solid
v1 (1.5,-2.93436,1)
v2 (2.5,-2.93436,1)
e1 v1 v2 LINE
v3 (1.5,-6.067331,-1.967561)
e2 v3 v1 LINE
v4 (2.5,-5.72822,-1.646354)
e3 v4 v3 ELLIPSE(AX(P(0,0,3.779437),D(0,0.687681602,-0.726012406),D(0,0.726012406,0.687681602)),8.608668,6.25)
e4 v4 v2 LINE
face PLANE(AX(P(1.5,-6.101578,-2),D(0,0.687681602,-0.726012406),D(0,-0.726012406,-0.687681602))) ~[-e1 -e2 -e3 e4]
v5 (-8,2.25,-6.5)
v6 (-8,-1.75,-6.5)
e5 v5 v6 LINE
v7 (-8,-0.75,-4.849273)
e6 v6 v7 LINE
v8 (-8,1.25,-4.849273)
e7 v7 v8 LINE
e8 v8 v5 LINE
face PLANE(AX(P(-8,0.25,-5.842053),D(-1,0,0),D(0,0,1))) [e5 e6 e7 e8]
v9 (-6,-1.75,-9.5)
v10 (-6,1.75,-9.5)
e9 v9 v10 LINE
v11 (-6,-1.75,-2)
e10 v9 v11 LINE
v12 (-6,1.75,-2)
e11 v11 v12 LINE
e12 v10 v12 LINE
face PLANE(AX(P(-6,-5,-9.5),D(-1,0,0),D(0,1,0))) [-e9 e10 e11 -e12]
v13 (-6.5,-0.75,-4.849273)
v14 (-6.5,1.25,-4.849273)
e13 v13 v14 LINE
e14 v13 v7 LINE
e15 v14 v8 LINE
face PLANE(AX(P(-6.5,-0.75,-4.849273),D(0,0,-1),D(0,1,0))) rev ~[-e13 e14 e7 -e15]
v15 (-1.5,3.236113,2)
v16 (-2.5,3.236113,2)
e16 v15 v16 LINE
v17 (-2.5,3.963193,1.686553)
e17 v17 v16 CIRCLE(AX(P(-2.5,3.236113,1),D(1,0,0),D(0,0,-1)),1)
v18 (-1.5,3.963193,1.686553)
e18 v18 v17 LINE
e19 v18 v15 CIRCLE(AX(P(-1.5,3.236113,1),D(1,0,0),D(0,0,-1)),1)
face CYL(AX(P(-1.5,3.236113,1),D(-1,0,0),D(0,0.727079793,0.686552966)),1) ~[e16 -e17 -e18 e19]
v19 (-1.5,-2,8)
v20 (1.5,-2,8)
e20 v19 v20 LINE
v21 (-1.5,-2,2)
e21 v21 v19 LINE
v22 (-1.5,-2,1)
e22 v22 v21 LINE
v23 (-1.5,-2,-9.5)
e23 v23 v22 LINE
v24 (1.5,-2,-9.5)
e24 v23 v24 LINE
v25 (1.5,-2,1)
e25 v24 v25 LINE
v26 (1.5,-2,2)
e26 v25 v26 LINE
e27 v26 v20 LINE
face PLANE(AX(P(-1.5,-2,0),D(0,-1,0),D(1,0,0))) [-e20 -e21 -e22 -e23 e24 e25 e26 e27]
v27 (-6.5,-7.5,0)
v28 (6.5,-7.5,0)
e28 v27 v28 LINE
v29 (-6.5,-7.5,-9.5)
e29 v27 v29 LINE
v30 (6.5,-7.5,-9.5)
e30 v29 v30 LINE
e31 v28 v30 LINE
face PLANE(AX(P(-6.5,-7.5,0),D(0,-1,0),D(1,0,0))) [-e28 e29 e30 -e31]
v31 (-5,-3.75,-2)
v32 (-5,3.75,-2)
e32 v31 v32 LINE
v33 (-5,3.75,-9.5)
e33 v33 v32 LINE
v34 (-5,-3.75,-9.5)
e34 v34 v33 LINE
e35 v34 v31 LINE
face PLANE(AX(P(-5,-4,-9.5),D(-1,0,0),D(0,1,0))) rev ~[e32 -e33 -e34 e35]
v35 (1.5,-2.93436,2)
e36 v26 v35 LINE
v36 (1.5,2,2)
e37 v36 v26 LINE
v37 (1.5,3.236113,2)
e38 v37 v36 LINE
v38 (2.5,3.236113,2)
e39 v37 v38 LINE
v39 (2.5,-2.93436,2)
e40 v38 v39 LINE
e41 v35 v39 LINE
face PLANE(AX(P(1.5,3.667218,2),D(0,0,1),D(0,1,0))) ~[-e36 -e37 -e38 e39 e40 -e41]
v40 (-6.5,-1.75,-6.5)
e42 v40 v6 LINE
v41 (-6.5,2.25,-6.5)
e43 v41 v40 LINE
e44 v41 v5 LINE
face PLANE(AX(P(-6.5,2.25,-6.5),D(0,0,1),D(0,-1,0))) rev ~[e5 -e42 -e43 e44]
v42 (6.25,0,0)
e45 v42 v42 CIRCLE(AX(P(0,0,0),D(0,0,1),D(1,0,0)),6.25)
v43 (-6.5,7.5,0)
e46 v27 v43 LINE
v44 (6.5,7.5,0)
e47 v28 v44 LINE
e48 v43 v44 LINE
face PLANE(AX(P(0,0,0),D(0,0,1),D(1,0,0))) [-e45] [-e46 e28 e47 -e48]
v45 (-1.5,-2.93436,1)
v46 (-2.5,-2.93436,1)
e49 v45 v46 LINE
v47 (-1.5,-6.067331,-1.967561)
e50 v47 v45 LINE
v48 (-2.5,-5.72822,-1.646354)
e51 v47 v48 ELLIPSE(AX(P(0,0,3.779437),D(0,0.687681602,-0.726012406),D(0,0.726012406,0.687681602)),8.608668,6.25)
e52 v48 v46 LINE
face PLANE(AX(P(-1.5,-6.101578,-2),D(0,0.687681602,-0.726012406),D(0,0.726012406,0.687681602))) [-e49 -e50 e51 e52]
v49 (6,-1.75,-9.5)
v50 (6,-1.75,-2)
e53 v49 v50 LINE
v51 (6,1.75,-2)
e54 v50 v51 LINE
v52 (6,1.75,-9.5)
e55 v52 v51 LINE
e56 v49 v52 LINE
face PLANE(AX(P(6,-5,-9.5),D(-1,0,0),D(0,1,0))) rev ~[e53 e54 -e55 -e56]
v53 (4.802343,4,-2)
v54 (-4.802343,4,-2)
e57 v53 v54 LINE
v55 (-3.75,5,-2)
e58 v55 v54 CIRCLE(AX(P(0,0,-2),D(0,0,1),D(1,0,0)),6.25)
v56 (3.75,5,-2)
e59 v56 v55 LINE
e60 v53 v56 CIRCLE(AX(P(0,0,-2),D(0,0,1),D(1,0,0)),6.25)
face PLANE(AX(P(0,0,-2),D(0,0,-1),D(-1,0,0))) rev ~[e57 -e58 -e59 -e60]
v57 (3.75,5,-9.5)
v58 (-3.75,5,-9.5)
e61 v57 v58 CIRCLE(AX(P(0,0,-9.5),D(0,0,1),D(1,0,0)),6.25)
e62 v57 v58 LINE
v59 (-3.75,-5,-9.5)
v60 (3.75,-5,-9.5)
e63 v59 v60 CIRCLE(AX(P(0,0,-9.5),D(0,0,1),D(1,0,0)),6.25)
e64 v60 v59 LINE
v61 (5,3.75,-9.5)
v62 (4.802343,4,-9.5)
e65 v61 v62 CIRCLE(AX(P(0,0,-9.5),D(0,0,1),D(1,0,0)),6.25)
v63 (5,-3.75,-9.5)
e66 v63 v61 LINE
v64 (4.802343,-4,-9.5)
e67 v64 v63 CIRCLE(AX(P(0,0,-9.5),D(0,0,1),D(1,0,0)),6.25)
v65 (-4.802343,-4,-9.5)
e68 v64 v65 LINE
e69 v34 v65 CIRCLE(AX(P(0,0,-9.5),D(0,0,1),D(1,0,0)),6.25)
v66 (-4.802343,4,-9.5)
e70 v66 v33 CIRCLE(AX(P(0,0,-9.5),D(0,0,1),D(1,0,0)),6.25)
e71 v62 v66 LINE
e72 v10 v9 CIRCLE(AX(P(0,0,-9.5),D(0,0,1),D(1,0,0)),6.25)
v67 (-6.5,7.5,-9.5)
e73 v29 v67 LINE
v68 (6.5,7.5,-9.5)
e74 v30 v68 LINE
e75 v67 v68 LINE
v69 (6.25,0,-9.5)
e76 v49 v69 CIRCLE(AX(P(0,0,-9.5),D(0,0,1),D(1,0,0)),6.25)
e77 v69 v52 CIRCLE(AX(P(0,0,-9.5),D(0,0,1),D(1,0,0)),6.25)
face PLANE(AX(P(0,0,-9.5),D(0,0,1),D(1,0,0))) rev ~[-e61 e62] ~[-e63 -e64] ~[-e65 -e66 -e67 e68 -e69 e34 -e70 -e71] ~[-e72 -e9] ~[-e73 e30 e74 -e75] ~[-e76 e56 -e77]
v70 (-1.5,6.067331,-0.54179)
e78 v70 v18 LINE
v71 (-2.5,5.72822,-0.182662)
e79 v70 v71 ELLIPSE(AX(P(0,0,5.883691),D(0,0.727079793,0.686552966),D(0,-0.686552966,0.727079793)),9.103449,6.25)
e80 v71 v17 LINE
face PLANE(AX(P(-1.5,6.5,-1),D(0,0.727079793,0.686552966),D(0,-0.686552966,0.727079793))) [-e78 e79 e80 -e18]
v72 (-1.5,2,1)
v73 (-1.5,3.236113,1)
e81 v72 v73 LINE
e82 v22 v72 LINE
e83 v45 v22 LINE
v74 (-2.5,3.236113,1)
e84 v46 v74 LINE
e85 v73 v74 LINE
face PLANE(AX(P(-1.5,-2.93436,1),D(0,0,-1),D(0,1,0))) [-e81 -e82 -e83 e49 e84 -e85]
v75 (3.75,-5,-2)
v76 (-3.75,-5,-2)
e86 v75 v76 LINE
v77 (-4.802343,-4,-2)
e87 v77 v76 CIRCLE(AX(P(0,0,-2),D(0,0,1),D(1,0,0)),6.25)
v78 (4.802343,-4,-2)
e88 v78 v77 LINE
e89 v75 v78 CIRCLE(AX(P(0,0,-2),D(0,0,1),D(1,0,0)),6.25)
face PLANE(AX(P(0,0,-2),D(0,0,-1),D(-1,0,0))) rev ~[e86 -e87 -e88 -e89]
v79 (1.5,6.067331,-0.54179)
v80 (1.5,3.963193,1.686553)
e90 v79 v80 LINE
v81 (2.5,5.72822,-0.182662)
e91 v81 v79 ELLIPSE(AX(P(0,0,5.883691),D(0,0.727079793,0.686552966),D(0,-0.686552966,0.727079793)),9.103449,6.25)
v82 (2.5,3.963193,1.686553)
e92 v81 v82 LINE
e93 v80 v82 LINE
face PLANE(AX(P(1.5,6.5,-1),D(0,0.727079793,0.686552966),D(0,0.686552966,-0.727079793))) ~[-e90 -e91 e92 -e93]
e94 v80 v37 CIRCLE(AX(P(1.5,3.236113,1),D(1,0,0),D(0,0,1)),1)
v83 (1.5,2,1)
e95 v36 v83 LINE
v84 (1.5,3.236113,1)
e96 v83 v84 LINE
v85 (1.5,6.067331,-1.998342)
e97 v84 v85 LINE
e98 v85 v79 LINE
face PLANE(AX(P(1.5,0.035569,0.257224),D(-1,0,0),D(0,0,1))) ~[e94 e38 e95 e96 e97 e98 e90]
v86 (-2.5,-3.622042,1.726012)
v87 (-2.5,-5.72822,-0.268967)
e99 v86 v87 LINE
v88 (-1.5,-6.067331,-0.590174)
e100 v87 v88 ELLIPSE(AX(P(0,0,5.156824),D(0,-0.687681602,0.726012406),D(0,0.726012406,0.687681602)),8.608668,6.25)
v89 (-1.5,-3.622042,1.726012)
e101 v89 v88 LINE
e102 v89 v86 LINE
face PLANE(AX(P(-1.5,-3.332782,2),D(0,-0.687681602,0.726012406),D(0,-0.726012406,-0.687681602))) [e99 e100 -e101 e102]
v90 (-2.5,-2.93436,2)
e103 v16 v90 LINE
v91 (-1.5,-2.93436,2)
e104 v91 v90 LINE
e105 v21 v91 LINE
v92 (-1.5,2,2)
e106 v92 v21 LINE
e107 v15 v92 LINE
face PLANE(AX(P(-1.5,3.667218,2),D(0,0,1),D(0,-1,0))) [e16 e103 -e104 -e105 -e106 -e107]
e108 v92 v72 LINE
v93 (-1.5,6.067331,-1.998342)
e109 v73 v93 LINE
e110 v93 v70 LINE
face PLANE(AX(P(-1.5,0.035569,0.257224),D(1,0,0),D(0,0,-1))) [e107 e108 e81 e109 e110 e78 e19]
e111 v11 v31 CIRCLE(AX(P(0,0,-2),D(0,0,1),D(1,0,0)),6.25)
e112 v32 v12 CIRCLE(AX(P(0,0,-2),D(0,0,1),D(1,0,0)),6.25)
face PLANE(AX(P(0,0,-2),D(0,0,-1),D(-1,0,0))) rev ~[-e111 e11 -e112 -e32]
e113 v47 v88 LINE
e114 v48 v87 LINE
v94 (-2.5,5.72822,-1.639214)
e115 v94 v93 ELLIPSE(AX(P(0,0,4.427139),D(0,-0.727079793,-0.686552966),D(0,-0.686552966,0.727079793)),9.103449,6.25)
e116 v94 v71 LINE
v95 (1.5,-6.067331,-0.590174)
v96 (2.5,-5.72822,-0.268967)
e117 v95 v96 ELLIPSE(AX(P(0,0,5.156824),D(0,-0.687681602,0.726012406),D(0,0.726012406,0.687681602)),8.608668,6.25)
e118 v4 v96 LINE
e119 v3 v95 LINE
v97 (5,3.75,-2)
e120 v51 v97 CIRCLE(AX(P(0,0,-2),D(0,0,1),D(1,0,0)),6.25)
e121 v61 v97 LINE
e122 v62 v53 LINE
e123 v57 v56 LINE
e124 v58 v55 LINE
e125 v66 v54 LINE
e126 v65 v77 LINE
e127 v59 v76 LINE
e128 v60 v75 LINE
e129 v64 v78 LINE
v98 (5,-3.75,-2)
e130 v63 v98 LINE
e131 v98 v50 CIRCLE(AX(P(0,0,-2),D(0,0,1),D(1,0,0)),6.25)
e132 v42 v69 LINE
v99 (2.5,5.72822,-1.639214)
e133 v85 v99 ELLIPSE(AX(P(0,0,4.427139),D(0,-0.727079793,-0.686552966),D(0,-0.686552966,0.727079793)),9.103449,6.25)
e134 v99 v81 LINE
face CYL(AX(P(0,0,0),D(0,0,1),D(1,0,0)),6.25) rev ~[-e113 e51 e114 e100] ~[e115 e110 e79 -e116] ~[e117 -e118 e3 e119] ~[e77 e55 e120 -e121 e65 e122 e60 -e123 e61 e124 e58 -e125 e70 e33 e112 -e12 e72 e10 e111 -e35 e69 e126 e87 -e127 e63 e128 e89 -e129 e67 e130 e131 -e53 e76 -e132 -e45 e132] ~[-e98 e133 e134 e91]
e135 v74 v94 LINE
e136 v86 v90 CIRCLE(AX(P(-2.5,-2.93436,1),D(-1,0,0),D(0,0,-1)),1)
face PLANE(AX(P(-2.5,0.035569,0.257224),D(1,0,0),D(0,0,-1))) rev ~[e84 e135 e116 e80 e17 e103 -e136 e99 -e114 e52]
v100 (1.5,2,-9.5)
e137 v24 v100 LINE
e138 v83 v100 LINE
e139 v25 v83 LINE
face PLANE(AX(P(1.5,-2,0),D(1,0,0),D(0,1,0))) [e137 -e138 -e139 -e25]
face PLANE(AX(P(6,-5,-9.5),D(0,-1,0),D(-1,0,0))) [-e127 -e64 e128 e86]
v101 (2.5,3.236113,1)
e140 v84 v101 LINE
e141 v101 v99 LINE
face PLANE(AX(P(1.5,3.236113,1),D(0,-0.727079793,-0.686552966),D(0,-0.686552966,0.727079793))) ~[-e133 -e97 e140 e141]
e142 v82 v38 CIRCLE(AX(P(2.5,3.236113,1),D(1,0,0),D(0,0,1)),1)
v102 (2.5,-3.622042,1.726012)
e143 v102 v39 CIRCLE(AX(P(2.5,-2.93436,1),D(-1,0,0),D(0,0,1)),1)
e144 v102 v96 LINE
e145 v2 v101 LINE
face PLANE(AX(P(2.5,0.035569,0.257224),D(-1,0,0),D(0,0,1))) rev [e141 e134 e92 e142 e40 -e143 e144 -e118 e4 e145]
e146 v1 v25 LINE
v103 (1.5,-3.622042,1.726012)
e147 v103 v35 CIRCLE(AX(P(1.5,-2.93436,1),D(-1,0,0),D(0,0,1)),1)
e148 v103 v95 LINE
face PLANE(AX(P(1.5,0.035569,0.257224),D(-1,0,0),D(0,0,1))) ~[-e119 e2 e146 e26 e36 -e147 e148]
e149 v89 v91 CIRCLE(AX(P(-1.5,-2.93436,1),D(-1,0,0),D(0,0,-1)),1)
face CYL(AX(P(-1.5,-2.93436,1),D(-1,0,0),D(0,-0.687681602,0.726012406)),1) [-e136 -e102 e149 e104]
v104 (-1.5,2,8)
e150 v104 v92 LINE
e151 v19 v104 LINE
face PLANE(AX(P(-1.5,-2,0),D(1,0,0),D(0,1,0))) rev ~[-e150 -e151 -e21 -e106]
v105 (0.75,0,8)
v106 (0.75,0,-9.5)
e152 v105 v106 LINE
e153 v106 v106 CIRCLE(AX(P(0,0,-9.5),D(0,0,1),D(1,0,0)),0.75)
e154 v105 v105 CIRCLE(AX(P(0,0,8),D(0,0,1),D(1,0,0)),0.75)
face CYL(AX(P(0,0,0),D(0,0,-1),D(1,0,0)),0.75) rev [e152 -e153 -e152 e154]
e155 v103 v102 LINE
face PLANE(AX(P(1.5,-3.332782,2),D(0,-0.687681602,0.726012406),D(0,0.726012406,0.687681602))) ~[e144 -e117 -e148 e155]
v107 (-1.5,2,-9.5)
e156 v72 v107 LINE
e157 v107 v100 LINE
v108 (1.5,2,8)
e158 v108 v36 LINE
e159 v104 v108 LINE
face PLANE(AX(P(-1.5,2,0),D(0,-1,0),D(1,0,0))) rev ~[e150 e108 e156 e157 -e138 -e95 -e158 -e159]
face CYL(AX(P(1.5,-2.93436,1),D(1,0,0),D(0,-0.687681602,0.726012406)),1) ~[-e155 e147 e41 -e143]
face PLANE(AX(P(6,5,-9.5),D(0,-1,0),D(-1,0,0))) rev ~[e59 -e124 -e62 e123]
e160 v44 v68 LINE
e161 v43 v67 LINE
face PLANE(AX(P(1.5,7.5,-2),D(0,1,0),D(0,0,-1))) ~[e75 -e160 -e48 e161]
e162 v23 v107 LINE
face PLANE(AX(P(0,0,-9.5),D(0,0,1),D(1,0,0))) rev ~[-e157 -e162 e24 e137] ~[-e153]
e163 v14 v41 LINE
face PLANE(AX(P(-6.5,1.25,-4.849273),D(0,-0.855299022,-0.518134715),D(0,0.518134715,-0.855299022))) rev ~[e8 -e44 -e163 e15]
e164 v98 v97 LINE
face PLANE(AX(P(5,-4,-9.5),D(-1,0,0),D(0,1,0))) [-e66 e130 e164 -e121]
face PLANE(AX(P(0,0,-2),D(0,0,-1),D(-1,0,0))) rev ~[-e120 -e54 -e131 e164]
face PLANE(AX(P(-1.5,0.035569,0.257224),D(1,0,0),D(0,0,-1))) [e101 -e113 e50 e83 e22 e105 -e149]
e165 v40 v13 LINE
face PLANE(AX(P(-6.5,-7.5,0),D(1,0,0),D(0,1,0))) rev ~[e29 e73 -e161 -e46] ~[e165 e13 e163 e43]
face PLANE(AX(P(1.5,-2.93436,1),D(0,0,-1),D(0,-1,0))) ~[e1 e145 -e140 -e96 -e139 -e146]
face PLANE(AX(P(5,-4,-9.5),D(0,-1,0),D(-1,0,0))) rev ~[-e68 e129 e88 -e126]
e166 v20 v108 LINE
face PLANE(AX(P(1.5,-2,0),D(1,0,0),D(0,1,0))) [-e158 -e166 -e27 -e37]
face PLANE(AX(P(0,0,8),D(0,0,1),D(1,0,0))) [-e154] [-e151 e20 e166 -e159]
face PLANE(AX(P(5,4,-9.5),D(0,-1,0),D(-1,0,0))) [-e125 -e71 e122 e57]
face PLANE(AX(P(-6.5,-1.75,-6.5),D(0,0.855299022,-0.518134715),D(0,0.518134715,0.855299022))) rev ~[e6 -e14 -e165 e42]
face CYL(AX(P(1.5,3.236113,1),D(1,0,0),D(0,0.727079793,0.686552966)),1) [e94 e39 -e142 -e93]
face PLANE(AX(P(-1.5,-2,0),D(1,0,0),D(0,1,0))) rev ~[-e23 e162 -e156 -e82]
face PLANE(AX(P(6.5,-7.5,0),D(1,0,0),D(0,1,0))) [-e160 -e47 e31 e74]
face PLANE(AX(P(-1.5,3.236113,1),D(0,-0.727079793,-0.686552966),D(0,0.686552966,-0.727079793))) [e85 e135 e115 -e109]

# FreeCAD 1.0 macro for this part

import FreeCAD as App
import Part
import Sketcher
from FreeCAD import Vector
Q = App.Units.Quantity


def edges_at(feature, points):
    """Names of the edges that pass closest to the given points."""
    edges = feature.Shape.Edges
    near = lambda p: min(range(len(edges)), key=lambda i: edges[i].distToShape(Part.Vertex(*p))[0])
    return sorted({f"Edge{near(p) + 1}" for p in points})


def add_polygon(sketch, points):
    """Adds a closed chain of lines whose ends are joined by coincident constraints."""
    first, n = sketch.GeometryCount, len(points)
    for a, b in zip(points, points[1:] + points[:1]):
        sketch.addGeometry(Part.LineSegment(App.Vector(*a, 0), App.Vector(*b, 0)), False)
    for i in range(n):
        sketch.addConstraint(Sketcher.Constraint("Coincident", first + i, 2, first + (i + 1) % n, 1))

doc = App.newDocument("Part")
body = doc.addObject("PartDesign::Body", "Body")

sketch1 = doc.addObject("Sketcher::SketchObject", "Sketch")
body.addObject(sketch1)
sketch1.AttachmentSupport = (doc.XY_Plane, [""])
sketch1.MapMode = "FlatFace"
add_polygon(sketch1, [(-6.5, 7.5), (-6.5, -7.5), (6.5, -7.5), (6.5, 7.5)])
sketch1.addConstraint(Sketcher.Constraint("Vertical", 0))
sketch1.addConstraint(Sketcher.Constraint("Horizontal", 1))
sketch1.addConstraint(Sketcher.Constraint("Vertical", 2))
sketch1.addConstraint(Sketcher.Constraint("Horizontal", 3))
sketch1.addConstraint(Sketcher.Constraint("Symmetric", 0, 2, 2, 2, -1, 1))
sketch1.addConstraint(Sketcher.Constraint("DistanceX", 1, 1, 1, 2, Q("13 mm")))
sketch1.addConstraint(Sketcher.Constraint("DistanceY", 0, 2, 0, 1, Q("15 mm")))
pad1 = doc.addObject("PartDesign::Pad", "Pad")
body.addObject(pad1)
pad1.Profile = sketch1
pad1.Length = 9.5
pad1.Reversed = True

sketch2 = doc.addObject("Sketcher::SketchObject", "Sketch001")
body.addObject(sketch2)
sketch2.AttachmentSupport = (doc.XY_Plane, [""])
sketch2.MapMode = "FlatFace"
sketch2.addGeometry(Part.Circle(Vector(0, 0, 0), Vector(0, 0, 1), 6.25), False)
sketch2.addConstraint(Sketcher.Constraint("Coincident", 0, 3, -1, 1))
sketch2.addConstraint(Sketcher.Constraint("Diameter", 0, Q("12.5 mm")))
pocket1 = doc.addObject("PartDesign::Pocket", "Pocket")
body.addObject(pocket1)
pocket1.Profile = sketch2
pocket1.Type = "ThroughAll"

sketch3 = doc.addObject("Sketcher::SketchObject", "Sketch002")
body.addObject(sketch3)
sketch3.AttachmentSupport = (doc.YZ_Plane, [""])
sketch3.MapMode = "FlatFace"
sketch3.AttachmentOffset = App.Placement(Vector(0, 0, -6.5), App.Rotation())
add_polygon(sketch3, [(2.25, -6.5), (-1.75, -6.5), (-0.75, -4.849273), (1.25, -4.849273)])
sketch3.addConstraint(Sketcher.Constraint("Horizontal", 0))
sketch3.addConstraint(Sketcher.Constraint("Horizontal", 2))
sketch3.addConstraint(Sketcher.Constraint("Equal", 1, 3))
sketch3.addConstraint(Sketcher.Constraint("DistanceX", 0, 2, 0, 1, Q("4 mm")))
sketch3.addConstraint(Sketcher.Constraint("DistanceX", 2, 1, 2, 2, Q("2 mm")))
sketch3.addConstraint(Sketcher.Constraint("DistanceY", 0, 2, -1, 1, Q("6.5 mm")))
sketch3.addConstraint(Sketcher.Constraint("Distance", 1, Q("1.93 mm")))
sketch3.addConstraint(Sketcher.Constraint("DistanceX", 0, 2, -1, 1, Q("1.75 mm")))
pad2 = doc.addObject("PartDesign::Pad", "Pad001")
body.addObject(pad2)
pad2.Profile = sketch3
pad2.Length = 1.5
pad2.Reversed = True

sketch4 = doc.addObject("Sketcher::SketchObject", "Sketch003")
body.addObject(sketch4)
sketch4.AttachmentSupport = (doc.XY_Plane, [""])
sketch4.MapMode = "FlatFace"
sketch4.AttachmentOffset = App.Placement(Vector(0, 0, -9.5), App.Rotation())
add_polygon(sketch4, [(6, 5), (6, -5), (-6, -5), (-6, 5)])
add_polygon(sketch4, [(-5, -4), (5, -4), (5, 4), (-5, 4)])
sketch4.addConstraint(Sketcher.Constraint("Vertical", 0))
sketch4.addConstraint(Sketcher.Constraint("Horizontal", 1))
sketch4.addConstraint(Sketcher.Constraint("Vertical", 2))
sketch4.addConstraint(Sketcher.Constraint("Horizontal", 3))
sketch4.addConstraint(Sketcher.Constraint("Horizontal", 4))
sketch4.addConstraint(Sketcher.Constraint("Vertical", 5))
sketch4.addConstraint(Sketcher.Constraint("Horizontal", 6))
sketch4.addConstraint(Sketcher.Constraint("Vertical", 7))
sketch4.addConstraint(Sketcher.Constraint("Symmetric", 0, 2, 2, 2, -1, 1))
sketch4.addConstraint(Sketcher.Constraint("Symmetric", 4, 2, 6, 2, -1, 1))
sketch4.addConstraint(Sketcher.Constraint("Equal", 6, 0))
sketch4.addConstraint(Sketcher.Constraint("DistanceX", 1, 2, 1, 1, Q("12 mm")))
sketch4.addConstraint(Sketcher.Constraint("DistanceX", 4, 1, 4, 2, Q("10 mm")))
sketch4.addConstraint(Sketcher.Constraint("DistanceY", 5, 1, 5, 2, Q("8 mm")))
pad3 = doc.addObject("PartDesign::Pad", "Pad002")
body.addObject(pad3)
pad3.Profile = sketch4
pad3.Length = 7.5
body2 = doc.addObject("PartDesign::Body", "Body001")

sketch5 = doc.addObject("Sketcher::SketchObject", "Sketch004")
body2.addObject(sketch5)
sketch5.AttachmentSupport = (doc.getObject("XY_Plane001"), [""])
sketch5.MapMode = "FlatFace"
add_polygon(sketch5, [(-1.5, 2), (-1.5, -2), (1.5, -2), (1.5, 2)])
sketch5.addGeometry(Part.Circle(Vector(0, 0, 0), Vector(0, 0, 1), 0.75), False)
sketch5.addConstraint(Sketcher.Constraint("Vertical", 0))
sketch5.addConstraint(Sketcher.Constraint("Horizontal", 1))
sketch5.addConstraint(Sketcher.Constraint("Vertical", 2))
sketch5.addConstraint(Sketcher.Constraint("Horizontal", 3))
sketch5.addConstraint(Sketcher.Constraint("Coincident", 4, 3, -1, 1))
sketch5.addConstraint(Sketcher.Constraint("Symmetric", 0, 2, 2, 2, -1, 1))
sketch5.addConstraint(Sketcher.Constraint("Diameter", 4, Q("1.5 mm")))
sketch5.addConstraint(Sketcher.Constraint("DistanceX", 1, 1, 1, 2, Q("3 mm")))
sketch5.addConstraint(Sketcher.Constraint("DistanceY", 0, 2, 0, 1, Q("4 mm")))
pad4 = doc.addObject("PartDesign::Pad", "Pad003")
body2.addObject(pad4)
pad4.Profile = sketch5
pad4.Type = "TwoLengths"
pad4.Length = 8
pad4.Length2 = 9.5
body.AllowCompound = True
doc.recompute()

boolean = doc.addObject("PartDesign::Boolean", "Boolean")
body.addObject(boolean)
boolean.Type = "Fuse"
boolean.addObjects([body2])

sketch6 = doc.addObject("Sketcher::SketchObject", "Sketch005")
body.addObject(sketch6)
sketch6.AttachmentSupport = (doc.YZ_Plane, [""])
sketch6.MapMode = "FlatFace"
sketch6.AttachmentOffset = App.Placement(Vector(0, 0, -1.5), App.Rotation())
add_polygon(sketch6, [(6.5, -1), (7.5, -1), (7.5, -2), (6.068896, -2), (3.236113, 1), (-2.93436, 1), (-6.101578, -2), (-7.5, -2), (-7.5, -1), (-6.5, -1), (-3.332782, 2), (3.667218, 2)])
sketch6.addConstraint(Sketcher.Constraint("Horizontal", 0))
sketch6.addConstraint(Sketcher.Constraint("Vertical", 1))
sketch6.addConstraint(Sketcher.Constraint("Horizontal", 2))
sketch6.addConstraint(Sketcher.Constraint("Horizontal", 4))
sketch6.addConstraint(Sketcher.Constraint("Horizontal", 6))
sketch6.addConstraint(Sketcher.Constraint("Vertical", 7))
sketch6.addConstraint(Sketcher.Constraint("Horizontal", 8))
sketch6.addConstraint(Sketcher.Constraint("Horizontal", 10))
sketch6.addConstraint(Sketcher.Constraint("Symmetric", 1, 2, 6, 2, -2))
sketch6.addConstraint(Sketcher.Constraint("Symmetric", 8, 2, 11, 2, -2))
sketch6.addConstraint(Sketcher.Constraint("Parallel", 5, 9))
sketch6.addConstraint(Sketcher.Constraint("Parallel", 3, 11))
sketch6.addConstraint(Sketcher.Constraint("Equal", 8, 1))
sketch6.addConstraint(Sketcher.Constraint("Equal", 5, 9))
sketch6.addConstraint(Sketcher.Constraint("DistanceX", 0, 1, 0, 2, Q("1 mm")))
sketch6.addConstraint(Sketcher.Constraint("DistanceX", 10, 1, 10, 2, Q("7 mm")))
sketch6.addConstraint(Sketcher.Constraint("DistanceY", 0, 2, -1, 1, Q("1 mm")))
sketch6.addConstraint(Sketcher.Constraint("DistanceY", -1, 1, 3, 2, Q("1 mm")))
sketch6.addConstraint(Sketcher.Constraint("DistanceX", 6, 2, 1, 2, Q("15 mm")))
sketch6.addConstraint(Sketcher.Constraint("DistanceX", 2, 2, 2, 1, Q("1.431104 mm")))
sketch6.addConstraint(Sketcher.Constraint("DistanceX", 4, 2, 4, 1, Q("6.170474 mm")))
sketch6.addConstraint(Sketcher.Constraint("DistanceX", 4, 2, -1, 1, Q("2.93436 mm")))
pad5 = doc.addObject("PartDesign::Pad", "Pad004")
body.addObject(pad5)
pad5.Profile = sketch6
pad5.Length = 1
pad5.Reversed = True
doc.recompute()

mirrored = doc.addObject("PartDesign::Mirrored", "Mirrored")
body.addObject(mirrored)
mirrored.Originals = [pad5]
mirrored.MirrorPlane = (doc.YZ_Plane, [""])
body.Tip = mirrored
doc.recompute()

fillet = doc.addObject("PartDesign::Fillet", "Fillet")
body.addObject(fillet)
fillet.Base = (mirrored, edges_at(mirrored, [
    (2, -3.333, 2),
    (2, 3.667, 2),
    (-2, -3.333, 2),
    (-2, 3.667, 2),
]))
fillet.Radius = 1

doc.recompute()
